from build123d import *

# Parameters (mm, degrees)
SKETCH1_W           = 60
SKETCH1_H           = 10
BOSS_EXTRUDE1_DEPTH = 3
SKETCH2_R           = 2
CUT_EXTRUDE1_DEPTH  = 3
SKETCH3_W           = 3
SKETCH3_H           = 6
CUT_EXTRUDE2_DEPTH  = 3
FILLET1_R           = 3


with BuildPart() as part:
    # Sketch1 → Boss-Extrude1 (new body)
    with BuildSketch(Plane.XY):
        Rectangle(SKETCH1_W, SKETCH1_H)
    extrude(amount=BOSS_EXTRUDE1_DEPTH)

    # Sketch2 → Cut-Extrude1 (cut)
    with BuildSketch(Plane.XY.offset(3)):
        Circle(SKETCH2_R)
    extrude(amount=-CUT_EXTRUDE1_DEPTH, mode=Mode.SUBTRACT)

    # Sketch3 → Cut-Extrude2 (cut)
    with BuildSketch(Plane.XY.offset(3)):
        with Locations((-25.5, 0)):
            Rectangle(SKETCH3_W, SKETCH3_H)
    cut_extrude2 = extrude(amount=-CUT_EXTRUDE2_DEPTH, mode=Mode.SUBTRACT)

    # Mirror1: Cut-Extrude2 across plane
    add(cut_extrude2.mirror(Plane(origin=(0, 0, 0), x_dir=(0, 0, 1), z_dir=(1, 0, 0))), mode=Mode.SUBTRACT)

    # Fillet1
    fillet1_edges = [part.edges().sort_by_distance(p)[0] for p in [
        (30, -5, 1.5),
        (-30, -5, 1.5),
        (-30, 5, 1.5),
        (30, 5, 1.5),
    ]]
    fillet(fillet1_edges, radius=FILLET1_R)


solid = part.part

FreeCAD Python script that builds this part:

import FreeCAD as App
import Part
import Sketcher
from FreeCAD import Vector


def edges_at(feature, points):
    """Names of the edges that pass closest to the given points."""
    edges = feature.Shape.Edges
    near = lambda p: min(range(len(edges)), key=lambda i: edges[i].distToShape(Part.Vertex(*p))[0])
    return sorted({f"Edge{near(p) + 1}" for p in points})

doc = App.newDocument("Part")
body = doc.addObject("PartDesign::Body", "Body")

# Sketch on XY plane
sketch1 = body.newObject("Sketcher::SketchObject", "Sketch")
sketch1.AttachmentSupport = (doc.getObject("XY_Plane"), [""])
sketch1.MapMode = "FlatFace"
sketch1.addGeometry(Part.LineSegment(Vector(-30, 5, 0), Vector(-30, -5, 0)), False)
sketch1.addGeometry(Part.LineSegment(Vector(-30, -5, 0), Vector(30, -5, 0)), False)
sketch1.addGeometry(Part.LineSegment(Vector(30, -5, 0), Vector(30, 5, 0)), False)
sketch1.addGeometry(Part.LineSegment(Vector(30, 5, 0), Vector(-30, 5, 0)), False)
sketch1.addConstraint(Sketcher.Constraint("Coincident", 0, 2, 1, 1))
sketch1.addConstraint(Sketcher.Constraint("Coincident", 1, 2, 2, 1))
sketch1.addConstraint(Sketcher.Constraint("Coincident", 2, 2, 3, 1))
sketch1.addConstraint(Sketcher.Constraint("Coincident", 3, 2, 0, 1))
sketch1.addConstraint(Sketcher.Constraint("Vertical", 0))
sketch1.addConstraint(Sketcher.Constraint("Horizontal", 1))
sketch1.addConstraint(Sketcher.Constraint("Vertical", 2))
sketch1.addConstraint(Sketcher.Constraint("Horizontal", 3))
sketch1.addConstraint(Sketcher.Constraint("Symmetric", 0, 2, 2, 2, -1, 1))
sketch1.addConstraint(Sketcher.Constraint("DistanceX", 1, 1, 1, 2, 60.0))
sketch1.addConstraint(Sketcher.Constraint("DistanceY", 0, 2, 0, 1, 10.0))
pad1 = body.newObject("PartDesign::Pad", "Pad")
pad1.Profile = sketch1
pad1.Length = 3

# Sketch on XY plane
sketch2 = body.newObject("Sketcher::SketchObject", "Sketch001")
sketch2.AttachmentSupport = (doc.getObject("XY_Plane"), [""])
sketch2.MapMode = "FlatFace"
sketch2.AttachmentOffset = App.Placement(Vector(0, 0, 3), App.Rotation())
sketch2.addGeometry(Part.Circle(Vector(0, 0, 0), Vector(0, 0, 1), 2), False)
sketch2.addConstraint(Sketcher.Constraint("Coincident", 0, 3, -1, 1))
sketch2.addConstraint(Sketcher.Constraint("Diameter", 0, 4.0))
pocket1 = body.newObject("PartDesign::Pocket", "Pocket")
pocket1.Profile = sketch2
pocket1.Length = 3

# Sketch on XY plane
sketch3 = body.newObject("Sketcher::SketchObject", "Sketch002")
sketch3.AttachmentSupport = (doc.getObject("XY_Plane"), [""])
sketch3.MapMode = "FlatFace"
sketch3.AttachmentOffset = App.Placement(Vector(0, 0, 3), App.Rotation())
sketch3.addGeometry(Part.LineSegment(Vector(-27, 3, 0), Vector(-27, -3, 0)), False)
sketch3.addGeometry(Part.LineSegment(Vector(-27, -3, 0), Vector(-24, -3, 0)), False)
sketch3.addGeometry(Part.LineSegment(Vector(-24, -3, 0), Vector(-24, 3, 0)), False)
sketch3.addGeometry(Part.LineSegment(Vector(-24, 3, 0), Vector(-27, 3, 0)), False)
sketch3.addConstraint(Sketcher.Constraint("Coincident", 0, 2, 1, 1))
sketch3.addConstraint(Sketcher.Constraint("Coincident", 1, 2, 2, 1))
sketch3.addConstraint(Sketcher.Constraint("Coincident", 2, 2, 3, 1))
sketch3.addConstraint(Sketcher.Constraint("Coincident", 3, 2, 0, 1))
sketch3.addConstraint(Sketcher.Constraint("Vertical", 0))
sketch3.addConstraint(Sketcher.Constraint("Horizontal", 1))
sketch3.addConstraint(Sketcher.Constraint("Vertical", 2))
sketch3.addConstraint(Sketcher.Constraint("Horizontal", 3))
sketch3.addConstraint(Sketcher.Constraint("DistanceX", 1, 1, 1, 2, 3.0))
sketch3.addConstraint(Sketcher.Constraint("DistanceY", 0, 2, 0, 1, 6.0))
sketch3.addConstraint(Sketcher.Constraint("DistanceX", 0, 2, -1, 1, 27.0))
sketch3.addConstraint(Sketcher.Constraint("DistanceY", 0, 2, -1, 1, 3.0))
pocket2 = body.newObject("PartDesign::Pocket", "Pocket001")
pocket2.Profile = sketch3
pocket2.Length = 3
doc.recompute()

mirrored = body.newObject("PartDesign::Mirrored", "Mirrored")
mirrored.Originals = [pocket2]
mirrored.MirrorPlane = (doc.getObject("YZ_Plane"), [""])
body.Tip = mirrored
doc.recompute()

fillet = body.newObject("PartDesign::Fillet", "Fillet")
fillet.Base = (mirrored, edges_at(mirrored, [
    (30, -5, 1.5),
    (-30, -5, 1.5),
    (-30, 5, 1.5),
    (30, 5, 1.5),
]))
fillet.Radius = 3

doc.recompute()
